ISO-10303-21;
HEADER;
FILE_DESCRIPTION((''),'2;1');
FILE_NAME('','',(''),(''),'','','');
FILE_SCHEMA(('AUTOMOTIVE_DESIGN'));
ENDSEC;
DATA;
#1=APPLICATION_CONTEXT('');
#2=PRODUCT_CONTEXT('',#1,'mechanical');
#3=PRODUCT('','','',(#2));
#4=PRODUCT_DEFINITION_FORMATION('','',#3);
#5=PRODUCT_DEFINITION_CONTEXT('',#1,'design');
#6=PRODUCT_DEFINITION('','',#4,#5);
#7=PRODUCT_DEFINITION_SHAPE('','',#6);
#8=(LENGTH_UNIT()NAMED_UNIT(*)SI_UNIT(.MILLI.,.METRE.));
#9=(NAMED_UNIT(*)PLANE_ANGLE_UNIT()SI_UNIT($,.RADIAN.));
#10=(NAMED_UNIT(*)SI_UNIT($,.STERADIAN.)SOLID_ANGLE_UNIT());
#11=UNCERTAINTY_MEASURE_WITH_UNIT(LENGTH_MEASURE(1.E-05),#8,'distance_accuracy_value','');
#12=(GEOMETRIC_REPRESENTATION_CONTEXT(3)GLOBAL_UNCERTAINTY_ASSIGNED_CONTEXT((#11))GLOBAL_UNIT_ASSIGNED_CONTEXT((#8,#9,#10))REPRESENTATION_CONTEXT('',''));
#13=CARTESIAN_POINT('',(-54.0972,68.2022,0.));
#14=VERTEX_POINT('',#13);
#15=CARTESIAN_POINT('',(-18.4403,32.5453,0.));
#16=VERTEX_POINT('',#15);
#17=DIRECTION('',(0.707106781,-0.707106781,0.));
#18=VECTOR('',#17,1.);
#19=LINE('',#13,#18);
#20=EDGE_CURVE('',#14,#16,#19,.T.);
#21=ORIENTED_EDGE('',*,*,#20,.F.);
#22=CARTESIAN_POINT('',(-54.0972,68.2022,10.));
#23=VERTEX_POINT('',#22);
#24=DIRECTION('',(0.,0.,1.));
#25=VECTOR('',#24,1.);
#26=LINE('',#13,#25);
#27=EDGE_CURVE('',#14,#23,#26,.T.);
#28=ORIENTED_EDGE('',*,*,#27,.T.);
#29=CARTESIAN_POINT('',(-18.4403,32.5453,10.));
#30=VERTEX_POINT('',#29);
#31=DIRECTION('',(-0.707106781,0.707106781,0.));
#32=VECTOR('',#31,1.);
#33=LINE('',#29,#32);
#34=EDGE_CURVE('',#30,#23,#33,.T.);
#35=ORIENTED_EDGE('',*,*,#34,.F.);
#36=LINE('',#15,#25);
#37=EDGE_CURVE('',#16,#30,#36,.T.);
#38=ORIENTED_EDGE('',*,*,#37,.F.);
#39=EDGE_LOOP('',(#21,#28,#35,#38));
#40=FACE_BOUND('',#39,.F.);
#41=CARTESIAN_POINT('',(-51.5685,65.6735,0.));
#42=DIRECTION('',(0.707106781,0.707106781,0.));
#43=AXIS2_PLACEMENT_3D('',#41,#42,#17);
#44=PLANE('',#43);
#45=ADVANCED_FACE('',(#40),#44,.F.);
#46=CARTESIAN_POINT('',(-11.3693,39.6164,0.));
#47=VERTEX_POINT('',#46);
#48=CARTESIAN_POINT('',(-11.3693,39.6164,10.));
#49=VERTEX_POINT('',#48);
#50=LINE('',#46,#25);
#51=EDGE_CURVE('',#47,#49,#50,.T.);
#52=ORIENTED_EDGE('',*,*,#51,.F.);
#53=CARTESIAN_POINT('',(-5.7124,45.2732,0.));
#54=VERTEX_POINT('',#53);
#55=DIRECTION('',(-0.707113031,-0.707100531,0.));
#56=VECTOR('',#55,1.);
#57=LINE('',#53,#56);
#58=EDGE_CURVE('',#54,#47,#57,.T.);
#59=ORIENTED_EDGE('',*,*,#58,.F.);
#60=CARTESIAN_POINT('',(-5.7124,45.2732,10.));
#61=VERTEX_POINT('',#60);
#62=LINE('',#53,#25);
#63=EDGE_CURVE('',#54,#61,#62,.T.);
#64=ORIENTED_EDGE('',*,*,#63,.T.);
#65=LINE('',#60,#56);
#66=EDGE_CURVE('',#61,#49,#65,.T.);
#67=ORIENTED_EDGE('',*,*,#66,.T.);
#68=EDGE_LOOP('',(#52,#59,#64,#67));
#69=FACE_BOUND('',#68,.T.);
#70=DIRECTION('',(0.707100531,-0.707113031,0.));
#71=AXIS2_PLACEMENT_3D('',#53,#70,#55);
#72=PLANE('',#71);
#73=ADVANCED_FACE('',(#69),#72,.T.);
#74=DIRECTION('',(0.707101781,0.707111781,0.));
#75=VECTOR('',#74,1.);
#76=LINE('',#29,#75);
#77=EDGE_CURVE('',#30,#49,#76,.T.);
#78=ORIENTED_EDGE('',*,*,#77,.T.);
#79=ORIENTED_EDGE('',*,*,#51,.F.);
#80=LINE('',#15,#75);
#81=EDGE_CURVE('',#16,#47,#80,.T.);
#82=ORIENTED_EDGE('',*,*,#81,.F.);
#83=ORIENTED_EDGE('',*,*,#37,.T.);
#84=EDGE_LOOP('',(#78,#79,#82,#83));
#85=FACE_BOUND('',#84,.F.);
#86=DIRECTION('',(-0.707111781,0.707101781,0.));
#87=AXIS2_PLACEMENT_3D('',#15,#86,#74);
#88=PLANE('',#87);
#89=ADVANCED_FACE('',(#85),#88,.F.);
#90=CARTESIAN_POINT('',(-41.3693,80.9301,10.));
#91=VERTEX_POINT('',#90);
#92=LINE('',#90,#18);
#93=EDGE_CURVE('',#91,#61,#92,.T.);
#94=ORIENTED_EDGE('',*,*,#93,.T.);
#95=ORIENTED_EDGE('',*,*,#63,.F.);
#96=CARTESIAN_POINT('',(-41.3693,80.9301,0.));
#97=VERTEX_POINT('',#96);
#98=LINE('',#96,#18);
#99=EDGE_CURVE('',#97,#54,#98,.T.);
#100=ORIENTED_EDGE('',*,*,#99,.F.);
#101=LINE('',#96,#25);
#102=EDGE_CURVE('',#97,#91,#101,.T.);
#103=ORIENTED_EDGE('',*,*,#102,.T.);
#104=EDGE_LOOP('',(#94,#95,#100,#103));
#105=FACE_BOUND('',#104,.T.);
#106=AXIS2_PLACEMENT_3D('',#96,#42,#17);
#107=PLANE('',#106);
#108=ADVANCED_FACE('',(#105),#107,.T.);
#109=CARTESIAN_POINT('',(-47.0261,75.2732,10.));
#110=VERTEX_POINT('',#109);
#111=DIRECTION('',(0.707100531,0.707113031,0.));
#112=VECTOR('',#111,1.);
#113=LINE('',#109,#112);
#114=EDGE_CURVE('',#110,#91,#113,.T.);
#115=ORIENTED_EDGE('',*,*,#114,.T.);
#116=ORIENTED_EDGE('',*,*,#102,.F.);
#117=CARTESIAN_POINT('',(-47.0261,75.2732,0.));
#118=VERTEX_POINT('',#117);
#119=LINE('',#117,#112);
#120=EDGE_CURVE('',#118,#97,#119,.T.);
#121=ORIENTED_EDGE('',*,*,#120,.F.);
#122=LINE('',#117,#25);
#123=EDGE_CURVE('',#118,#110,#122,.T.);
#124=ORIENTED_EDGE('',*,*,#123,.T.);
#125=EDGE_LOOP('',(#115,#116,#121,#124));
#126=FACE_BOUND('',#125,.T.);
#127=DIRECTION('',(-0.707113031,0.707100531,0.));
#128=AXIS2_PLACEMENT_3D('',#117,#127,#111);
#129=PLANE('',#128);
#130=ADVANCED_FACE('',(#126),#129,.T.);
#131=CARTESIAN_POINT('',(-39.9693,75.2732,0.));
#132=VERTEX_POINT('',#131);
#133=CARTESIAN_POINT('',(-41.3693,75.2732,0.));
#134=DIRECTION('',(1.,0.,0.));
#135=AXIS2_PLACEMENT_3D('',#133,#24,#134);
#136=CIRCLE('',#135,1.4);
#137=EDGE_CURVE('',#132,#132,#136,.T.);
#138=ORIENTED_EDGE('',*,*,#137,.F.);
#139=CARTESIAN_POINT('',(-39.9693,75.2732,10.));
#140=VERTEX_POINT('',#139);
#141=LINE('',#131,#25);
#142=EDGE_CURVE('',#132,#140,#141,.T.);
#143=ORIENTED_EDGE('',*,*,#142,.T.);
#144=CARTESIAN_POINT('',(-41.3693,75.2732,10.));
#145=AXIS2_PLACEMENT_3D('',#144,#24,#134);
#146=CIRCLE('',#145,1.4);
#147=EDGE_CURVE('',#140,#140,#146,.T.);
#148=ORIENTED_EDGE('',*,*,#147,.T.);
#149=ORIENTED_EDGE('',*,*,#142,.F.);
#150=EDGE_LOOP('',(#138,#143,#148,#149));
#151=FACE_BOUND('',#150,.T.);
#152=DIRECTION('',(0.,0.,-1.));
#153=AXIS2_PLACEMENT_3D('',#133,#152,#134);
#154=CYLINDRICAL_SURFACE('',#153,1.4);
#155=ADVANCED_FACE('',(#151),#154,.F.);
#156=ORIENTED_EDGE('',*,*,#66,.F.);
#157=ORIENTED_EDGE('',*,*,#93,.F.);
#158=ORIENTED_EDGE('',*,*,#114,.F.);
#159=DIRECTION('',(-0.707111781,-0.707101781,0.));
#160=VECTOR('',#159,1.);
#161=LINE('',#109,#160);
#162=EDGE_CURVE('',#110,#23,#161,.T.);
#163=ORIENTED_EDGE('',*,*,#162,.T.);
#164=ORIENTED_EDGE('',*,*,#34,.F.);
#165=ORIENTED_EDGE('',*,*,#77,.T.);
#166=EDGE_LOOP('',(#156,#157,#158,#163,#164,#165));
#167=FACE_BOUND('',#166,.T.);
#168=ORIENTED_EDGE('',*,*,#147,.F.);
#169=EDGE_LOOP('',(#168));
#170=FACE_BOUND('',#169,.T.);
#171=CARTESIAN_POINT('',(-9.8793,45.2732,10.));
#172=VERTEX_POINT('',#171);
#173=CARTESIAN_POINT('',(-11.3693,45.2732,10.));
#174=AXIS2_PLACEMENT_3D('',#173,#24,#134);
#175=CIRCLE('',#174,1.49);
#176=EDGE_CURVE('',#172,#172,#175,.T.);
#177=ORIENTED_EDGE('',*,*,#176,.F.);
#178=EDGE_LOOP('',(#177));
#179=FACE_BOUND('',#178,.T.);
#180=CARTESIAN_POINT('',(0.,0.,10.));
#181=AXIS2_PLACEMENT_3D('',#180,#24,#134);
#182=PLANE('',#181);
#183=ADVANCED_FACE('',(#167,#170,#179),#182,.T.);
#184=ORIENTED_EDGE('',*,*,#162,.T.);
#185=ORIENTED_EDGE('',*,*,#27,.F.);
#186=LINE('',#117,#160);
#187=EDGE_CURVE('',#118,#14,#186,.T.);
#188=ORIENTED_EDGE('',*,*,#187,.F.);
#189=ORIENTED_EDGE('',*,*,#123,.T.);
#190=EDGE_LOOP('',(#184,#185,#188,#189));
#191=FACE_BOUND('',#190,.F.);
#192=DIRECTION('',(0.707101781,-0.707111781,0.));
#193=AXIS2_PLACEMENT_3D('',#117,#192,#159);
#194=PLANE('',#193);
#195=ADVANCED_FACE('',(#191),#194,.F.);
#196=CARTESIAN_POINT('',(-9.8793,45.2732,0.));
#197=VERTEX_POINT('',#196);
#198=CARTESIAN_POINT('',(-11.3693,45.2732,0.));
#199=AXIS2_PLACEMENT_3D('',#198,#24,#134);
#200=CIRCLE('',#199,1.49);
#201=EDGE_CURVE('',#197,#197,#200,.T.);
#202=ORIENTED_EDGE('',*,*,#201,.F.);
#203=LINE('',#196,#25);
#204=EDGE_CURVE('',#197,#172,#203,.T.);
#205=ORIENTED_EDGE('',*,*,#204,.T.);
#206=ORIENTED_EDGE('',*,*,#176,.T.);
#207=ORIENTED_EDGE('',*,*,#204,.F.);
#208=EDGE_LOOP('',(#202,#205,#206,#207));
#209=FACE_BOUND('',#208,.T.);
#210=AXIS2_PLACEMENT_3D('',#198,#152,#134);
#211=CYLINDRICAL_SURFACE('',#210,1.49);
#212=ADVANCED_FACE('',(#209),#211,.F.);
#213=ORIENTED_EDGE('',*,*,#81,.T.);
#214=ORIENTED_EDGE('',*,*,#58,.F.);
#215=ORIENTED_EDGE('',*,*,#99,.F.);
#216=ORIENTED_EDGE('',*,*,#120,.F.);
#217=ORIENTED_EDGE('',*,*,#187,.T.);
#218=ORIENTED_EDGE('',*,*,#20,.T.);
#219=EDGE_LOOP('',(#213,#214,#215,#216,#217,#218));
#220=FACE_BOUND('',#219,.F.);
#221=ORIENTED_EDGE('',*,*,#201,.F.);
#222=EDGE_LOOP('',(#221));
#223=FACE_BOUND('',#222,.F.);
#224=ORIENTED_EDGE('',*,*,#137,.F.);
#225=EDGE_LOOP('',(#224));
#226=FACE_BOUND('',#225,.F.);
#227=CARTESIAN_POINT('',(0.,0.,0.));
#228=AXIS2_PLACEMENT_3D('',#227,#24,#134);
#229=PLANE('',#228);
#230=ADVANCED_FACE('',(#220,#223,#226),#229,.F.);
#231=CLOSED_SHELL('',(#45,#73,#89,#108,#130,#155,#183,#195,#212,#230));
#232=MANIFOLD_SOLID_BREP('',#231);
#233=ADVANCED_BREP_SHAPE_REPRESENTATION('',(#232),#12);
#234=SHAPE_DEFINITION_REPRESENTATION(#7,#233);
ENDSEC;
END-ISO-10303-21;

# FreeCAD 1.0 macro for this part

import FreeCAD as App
import Part
import Sketcher
Q = App.Units.Quantity


def add_polygon(sketch, points):
    """Adds a closed chain of lines whose ends are joined by coincident constraints."""
    first, n = sketch.GeometryCount, len(points)
    for a, b in zip(points, points[1:] + points[:1]):
        sketch.addGeometry(Part.LineSegment(App.Vector(*a, 0), App.Vector(*b, 0)), False)
    for i in range(n):
        sketch.addConstraint(Sketcher.Constraint("Coincident", first + i, 2, first + (i + 1) % n, 1))

doc = App.newDocument("Part")
params = doc.addObject("Spreadsheet::Sheet", "Params")
for row, (alias, value) in enumerate([
    ("sketch1_diameter", "2.8 mm"),
    ("sketch1_diameter2", "2.98 mm"),
    ("sketch1_length", "10 mm"),
    ("sketch1_length2", "8 mm"),
    ("pad1_length", "10 mm"),
], start=1):
    params.set(f"A{row}", alias)
    params.set(f"B{row}", "=" + value)
    params.setAlias(f"B{row}", alias)

body = doc.addObject("PartDesign::Body", "Body")

sketch1 = body.newObject("Sketcher::SketchObject", "Sketch")
sketch1.AttachmentSupport = (doc.getObject("XY_Plane"), [""])
sketch1.MapMode = "FlatFace"
add_polygon(sketch1, [(-18.4, 32.5), (-11.4, 39.6), (-5.7, 45.3), (-41.4, 80.9), (-47, 75.3), (-54.1, 68.2)])
sketch1.addGeometry(Part.Circle(App.Vector(-41.4, 75.3, 0), App.Vector(0, 0, 1), 1.4), False)
sketch1.addGeometry(Part.Circle(App.Vector(-11.4, 45.3, 0), App.Vector(0, 0, 1), 1.5), False)
sketch1.addConstraint([
    Sketcher.Constraint("Parallel", 0, 1),
    Sketcher.Constraint("Perpendicular", 1, 2),
    Sketcher.Constraint("Perpendicular", 2, 3),
    Sketcher.Constraint("Parallel", 3, 4),
    Sketcher.Constraint("Perpendicular", 4, 5),
    Sketcher.Constraint("Horizontal", 7, 3, 1, 2),
    Sketcher.Constraint("Horizontal", 6, 3, 3, 2),
    Sketcher.Constraint("Vertical", 7, 3, 0, 2),
    Sketcher.Constraint("Vertical", 6, 3, 2, 2),
    Sketcher.Constraint("Equal", 1, 3),
    Sketcher.Constraint("Diameter", 6, Q("2.8 mm")),
    Sketcher.Constraint("Diameter", 7, Q("2.98 mm")),
    Sketcher.Constraint("Angle", 0, Q("45.0004 deg")),
    Sketcher.Constraint("Distance", 0, Q("10 mm")),
    Sketcher.Constraint("Distance", 1, Q("8 mm")),
    Sketcher.Constraint("DistanceX", 6, 3, 7, 3, Q("30 mm")),
    Sketcher.Constraint("DistanceY", -1, 1, 2, 2, Q("80.93 mm")),
    Sketcher.Constraint("DistanceX", 3, 2, -1, 1, Q("47.026 mm")),
])
sketch1.setExpression("Constraints[16]", "Params.sketch1_diameter")
sketch1.setExpression("Constraints[17]", "Params.sketch1_diameter2")
sketch1.setExpression("Constraints[19]", "Params.sketch1_length")
sketch1.setExpression("Constraints[20]", "Params.sketch1_length2")
pad1 = body.newObject("PartDesign::Pad", "Pad")
pad1.Profile = sketch1
pad1.setExpression("Length", "Params.pad1_length")

doc.recompute()
